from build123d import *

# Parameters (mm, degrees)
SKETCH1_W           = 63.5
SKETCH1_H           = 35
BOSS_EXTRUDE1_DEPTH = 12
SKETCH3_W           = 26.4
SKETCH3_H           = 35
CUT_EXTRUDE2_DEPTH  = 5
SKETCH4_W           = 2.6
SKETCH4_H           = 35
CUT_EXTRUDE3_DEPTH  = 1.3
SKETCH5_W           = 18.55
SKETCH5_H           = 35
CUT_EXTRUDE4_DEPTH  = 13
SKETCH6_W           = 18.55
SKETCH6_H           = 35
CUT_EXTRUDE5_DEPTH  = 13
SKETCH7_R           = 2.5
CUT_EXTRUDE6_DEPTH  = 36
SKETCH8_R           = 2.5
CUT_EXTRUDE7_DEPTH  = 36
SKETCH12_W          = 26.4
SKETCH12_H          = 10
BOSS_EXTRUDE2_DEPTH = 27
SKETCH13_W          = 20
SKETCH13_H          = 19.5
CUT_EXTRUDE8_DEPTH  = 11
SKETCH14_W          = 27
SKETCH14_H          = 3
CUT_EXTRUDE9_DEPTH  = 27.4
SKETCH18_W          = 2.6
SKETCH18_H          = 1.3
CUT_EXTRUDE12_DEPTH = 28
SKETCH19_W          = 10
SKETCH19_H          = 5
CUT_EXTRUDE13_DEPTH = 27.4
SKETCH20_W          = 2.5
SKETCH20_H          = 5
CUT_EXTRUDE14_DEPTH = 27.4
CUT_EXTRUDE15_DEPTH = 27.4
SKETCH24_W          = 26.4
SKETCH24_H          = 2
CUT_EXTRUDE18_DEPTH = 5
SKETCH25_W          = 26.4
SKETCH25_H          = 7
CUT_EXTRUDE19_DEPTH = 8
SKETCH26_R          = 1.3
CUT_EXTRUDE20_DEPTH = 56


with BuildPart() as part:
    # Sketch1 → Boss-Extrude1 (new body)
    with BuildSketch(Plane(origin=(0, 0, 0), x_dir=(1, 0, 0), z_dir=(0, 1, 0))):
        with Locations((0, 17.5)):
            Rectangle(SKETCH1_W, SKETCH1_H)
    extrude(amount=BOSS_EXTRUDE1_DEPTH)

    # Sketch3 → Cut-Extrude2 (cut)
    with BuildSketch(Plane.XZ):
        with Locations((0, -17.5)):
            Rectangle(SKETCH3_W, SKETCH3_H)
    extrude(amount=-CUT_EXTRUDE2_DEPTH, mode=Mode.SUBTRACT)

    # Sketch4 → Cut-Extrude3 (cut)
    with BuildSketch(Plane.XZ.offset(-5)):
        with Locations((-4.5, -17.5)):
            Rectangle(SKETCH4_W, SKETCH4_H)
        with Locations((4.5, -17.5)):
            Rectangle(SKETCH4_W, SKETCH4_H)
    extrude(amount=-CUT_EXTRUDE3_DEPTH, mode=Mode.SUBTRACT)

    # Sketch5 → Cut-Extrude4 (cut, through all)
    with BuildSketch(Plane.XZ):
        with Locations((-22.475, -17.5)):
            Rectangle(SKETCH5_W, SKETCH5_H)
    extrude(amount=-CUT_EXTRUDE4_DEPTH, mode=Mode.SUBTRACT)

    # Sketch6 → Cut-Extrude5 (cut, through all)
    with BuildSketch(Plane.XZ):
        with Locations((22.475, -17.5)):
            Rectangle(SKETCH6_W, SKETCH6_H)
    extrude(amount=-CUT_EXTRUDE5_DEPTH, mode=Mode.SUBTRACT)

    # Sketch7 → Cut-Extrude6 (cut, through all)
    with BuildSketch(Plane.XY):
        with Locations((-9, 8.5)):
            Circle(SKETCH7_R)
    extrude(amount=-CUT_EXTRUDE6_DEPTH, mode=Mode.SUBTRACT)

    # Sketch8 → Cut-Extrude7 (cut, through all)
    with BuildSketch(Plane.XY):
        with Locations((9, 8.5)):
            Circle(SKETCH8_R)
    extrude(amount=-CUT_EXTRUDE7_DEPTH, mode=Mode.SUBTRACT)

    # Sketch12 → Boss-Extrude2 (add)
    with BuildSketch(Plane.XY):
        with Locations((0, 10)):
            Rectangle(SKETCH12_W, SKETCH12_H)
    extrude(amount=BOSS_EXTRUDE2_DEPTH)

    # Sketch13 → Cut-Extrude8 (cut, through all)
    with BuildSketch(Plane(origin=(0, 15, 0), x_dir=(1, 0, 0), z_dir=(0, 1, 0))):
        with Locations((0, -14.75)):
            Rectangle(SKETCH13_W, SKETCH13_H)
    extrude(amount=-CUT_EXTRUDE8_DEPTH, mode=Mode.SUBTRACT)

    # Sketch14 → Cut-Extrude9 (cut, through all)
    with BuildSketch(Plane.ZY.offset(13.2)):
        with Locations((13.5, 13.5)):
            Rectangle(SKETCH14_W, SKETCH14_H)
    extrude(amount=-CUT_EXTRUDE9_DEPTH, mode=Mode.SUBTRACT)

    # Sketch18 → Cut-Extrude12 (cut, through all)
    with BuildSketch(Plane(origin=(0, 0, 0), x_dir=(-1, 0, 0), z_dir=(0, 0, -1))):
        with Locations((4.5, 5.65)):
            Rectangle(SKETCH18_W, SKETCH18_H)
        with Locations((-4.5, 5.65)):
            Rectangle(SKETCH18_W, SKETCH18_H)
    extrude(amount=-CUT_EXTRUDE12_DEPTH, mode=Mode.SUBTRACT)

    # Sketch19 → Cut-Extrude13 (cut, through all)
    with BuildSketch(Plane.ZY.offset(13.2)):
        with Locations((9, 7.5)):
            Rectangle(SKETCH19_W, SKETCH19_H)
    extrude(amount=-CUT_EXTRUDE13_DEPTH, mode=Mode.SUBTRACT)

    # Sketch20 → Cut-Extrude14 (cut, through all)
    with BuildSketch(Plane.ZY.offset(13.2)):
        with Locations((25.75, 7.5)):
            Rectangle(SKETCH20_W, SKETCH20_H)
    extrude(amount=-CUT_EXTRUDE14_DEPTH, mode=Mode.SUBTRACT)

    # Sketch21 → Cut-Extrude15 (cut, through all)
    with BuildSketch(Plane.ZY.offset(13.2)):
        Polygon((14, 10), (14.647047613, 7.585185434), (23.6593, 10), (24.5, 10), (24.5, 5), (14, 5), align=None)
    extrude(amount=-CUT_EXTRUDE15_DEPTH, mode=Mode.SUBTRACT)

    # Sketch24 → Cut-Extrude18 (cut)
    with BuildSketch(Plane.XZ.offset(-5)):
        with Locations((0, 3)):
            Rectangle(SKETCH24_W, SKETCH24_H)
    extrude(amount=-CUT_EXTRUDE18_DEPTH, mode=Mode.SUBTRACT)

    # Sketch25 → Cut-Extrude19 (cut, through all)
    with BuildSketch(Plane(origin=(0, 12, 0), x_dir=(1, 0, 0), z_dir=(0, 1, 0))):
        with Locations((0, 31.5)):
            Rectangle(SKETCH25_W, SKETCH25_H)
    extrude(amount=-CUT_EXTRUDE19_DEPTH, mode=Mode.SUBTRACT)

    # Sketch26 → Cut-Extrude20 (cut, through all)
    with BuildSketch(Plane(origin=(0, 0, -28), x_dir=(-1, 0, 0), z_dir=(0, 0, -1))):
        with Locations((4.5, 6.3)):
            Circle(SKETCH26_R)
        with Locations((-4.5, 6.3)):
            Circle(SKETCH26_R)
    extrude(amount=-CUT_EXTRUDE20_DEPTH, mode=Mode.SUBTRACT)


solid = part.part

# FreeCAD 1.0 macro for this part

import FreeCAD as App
import Part
import Sketcher
Q = App.Units.Quantity


def add_polygon(sketch, points):
    """Adds a closed chain of lines whose ends are joined by coincident constraints."""
    first, n = sketch.GeometryCount, len(points)
    for a, b in zip(points, points[1:] + points[:1]):
        sketch.addGeometry(Part.LineSegment(App.Vector(*a, 0), App.Vector(*b, 0)), False)
    for i in range(n):
        sketch.addConstraint(Sketcher.Constraint("Coincident", first + i, 2, first + (i + 1) % n, 1))

doc = App.newDocument("Part")
params = doc.addObject("Spreadsheet::Sheet", "Params")
for row, (alias, value) in enumerate([
    ("sketch1_height", "35 mm"),
    ("sketch1_width", "63.5 mm"),
    ("pad1_length", "12 mm"),
    ("sketch2_height", "35 mm"),
    ("sketch2_width", "26.4 mm"),
    ("pocket1_length", "5 mm"),
    ("sketch3_height", "35 mm"),
    ("sketch3_width", "2.6 mm"),
    ("pocket2_length", "1.3 mm"),
    ("sketch4_height", "35 mm"),
    ("sketch4_width", "18.55 mm"),
    ("sketch5_height", "35 mm"),
    ("sketch5_width", "18.55 mm"),
    ("sketch6_diameter", "5 mm"),
    ("sketch7_diameter", "5 mm"),
    ("sketch8_height", "10 mm"),
    ("sketch8_width", "26.4 mm"),
    ("pad2_length", "27 mm"),
    ("sketch9_width", "20 mm"),
    ("sketch9_height", "19.5 mm"),
    ("sketch10_width", "3 mm"),
    ("sketch10_height", "27 mm"),
    ("sketch11_width", "2.6 mm"),
    ("sketch11_height", "1.3 mm"),
    ("sketch12_width", "5 mm"),
    ("sketch12_height", "10 mm"),
    ("sketch13_width", "5 mm"),
    ("sketch13_height", "2.5 mm"),
    ("sketch14_width", "5 mm"),
    ("sketch14_height", "10.5 mm"),
    ("sketch14_length", "2.5 mm"),
    ("sketch15_height", "2 mm"),
    ("sketch15_width", "26.4 mm"),
    ("pocket13_length", "5 mm"),
    ("sketch16_height", "7 mm"),
    ("sketch16_width", "26.4 mm"),
    ("sketch17_diameter", "2.6 mm"),
], start=1):
    params.set(f"A{row}", alias)
    params.set(f"B{row}", "=" + value)
    params.setAlias(f"B{row}", alias)

body = doc.addObject("PartDesign::Body", "Body")

sketch1 = body.newObject("Sketcher::SketchObject", "Sketch")
sketch1.AttachmentSupport = (doc.getObject("XZ_Plane"), [""])
sketch1.MapMode = "FlatFace"
add_polygon(sketch1, [(-32, -35), (-32, 0), (32, 0), (32, -35)])
sketch1.addConstraint([
    Sketcher.Constraint("Vertical", 0),
    Sketcher.Constraint("Horizontal", 1),
    Sketcher.Constraint("Vertical", 2),
    Sketcher.Constraint("Horizontal", 3),
    Sketcher.Constraint("Symmetric", 0, 2, 1, 2, -1, 1),
    Sketcher.Constraint("DistanceY", 0, 1, 0, 2, 35.0),
    Sketcher.Constraint("DistanceX", 1, 1, 1, 2, 63.5),
])
sketch1.setExpression("Constraints[9]", "Params.sketch1_height")
sketch1.setExpression("Constraints[10]", "Params.sketch1_width")
pad1 = body.newObject("PartDesign::Pad", "Pad")
pad1.Profile = sketch1
pad1.setExpression("Length", "Params.pad1_length")
pad1.Reversed = True

sketch2 = body.newObject("Sketcher::SketchObject", "Sketch001")
sketch2.AttachmentSupport = (doc.getObject("XZ_Plane"), [""])
sketch2.MapMode = "FlatFace"
add_polygon(sketch2, [(-13, 0), (-13, -35), (13, -35), (13, 0)])
sketch2.addConstraint([
    Sketcher.Constraint("Vertical", 0),
    Sketcher.Constraint("Horizontal", 1),
    Sketcher.Constraint("Vertical", 2),
    Sketcher.Constraint("Horizontal", 3),
    Sketcher.Constraint("Symmetric", 2, 2, 3, 2, -1, 1),
    Sketcher.Constraint("DistanceY", 0, 2, 0, 1, 35.0),
    Sketcher.Constraint("DistanceX", 1, 1, 1, 2, 26.4),
])
sketch2.setExpression("Constraints[9]", "Params.sketch2_height")
sketch2.setExpression("Constraints[10]", "Params.sketch2_width")
pocket1 = body.newObject("PartDesign::Pocket", "Pocket")
pocket1.Profile = sketch2
pocket1.setExpression("Length", "Params.pocket1_length")

sketch3 = body.newObject("Sketcher::SketchObject", "Sketch002")
sketch3.AttachmentSupport = (doc.getObject("XZ_Plane"), [""])
sketch3.MapMode = "FlatFace"
sketch3.AttachmentOffset = App.Placement(App.Vector(0, 0, -5), App.Rotation())
add_polygon(sketch3, [(-5.8, 0), (-5.8, -35), (-3.2, -35), (-3.2, 0)])
add_polygon(sketch3, [(3.2, 0), (3.2, -35), (5.8, -35), (5.8, 0)])
sketch3.addConstraint([
    Sketcher.Constraint("Vertical", 0),
    Sketcher.Constraint("Horizontal", 1),
    Sketcher.Constraint("Vertical", 2),
    Sketcher.Constraint("Horizontal", 3),
    Sketcher.Constraint("Vertical", 4),
    Sketcher.Constraint("Horizontal", 5),
    Sketcher.Constraint("Vertical", 6),
    Sketcher.Constraint("Horizontal", 7),
    Sketcher.Constraint("Symmetric", 3, 2, 6, 2, -1, 1),
    Sketcher.Constraint("Symmetric", 1, 2, 4, 2, -2),
    Sketcher.Constraint("PointOnObject", 2, 2, -1),
    Sketcher.Constraint("DistanceY", 0, 2, 0, 1, 35.0),
    Sketcher.Constraint("DistanceX", 1, 1, 1, 2, 2.6),
    Sketcher.Constraint("DistanceX", 0, 2, 4, 2, 9.0),
])
sketch3.setExpression("Constraints[19]", "Params.sketch3_height")
sketch3.setExpression("Constraints[20]", "Params.sketch3_width")
pocket2 = body.newObject("PartDesign::Pocket", "Pocket001")
pocket2.Profile = sketch3
pocket2.setExpression("Length", "Params.pocket2_length")

sketch4 = body.newObject("Sketcher::SketchObject", "Sketch003")
sketch4.AttachmentSupport = (doc.getObject("XZ_Plane"), [""])
sketch4.MapMode = "FlatFace"
add_polygon(sketch4, [(-32, 0), (-32, -35), (-13, -35), (-13, 0)])
sketch4.addConstraint([
    Sketcher.Constraint("Vertical", 0),
    Sketcher.Constraint("Horizontal", 1),
    Sketcher.Constraint("Vertical", 2),
    Sketcher.Constraint("Horizontal", 3),
    Sketcher.Constraint("PointOnObject", 2, 2, -1),
    Sketcher.Constraint("DistanceY", 0, 2, 0, 1, 35.0),
    Sketcher.Constraint("DistanceX", 1, 1, 1, 2, 18.55),
    Sketcher.Constraint("DistanceX", 1, 2, -1, 1, 13.2),
])
sketch4.setExpression("Constraints[9]", "Params.sketch4_height")
sketch4.setExpression("Constraints[10]", "Params.sketch4_width")
pocket3 = body.newObject("PartDesign::Pocket", "Pocket002")
pocket3.Profile = sketch4
pocket3.Type = "ThroughAll"

sketch5 = body.newObject("Sketcher::SketchObject", "Sketch004")
sketch5.AttachmentSupport = (doc.getObject("XZ_Plane"), [""])
sketch5.MapMode = "FlatFace"
add_polygon(sketch5, [(13, 0), (13, -35), (32, -35), (32, 0)])
sketch5.addConstraint([
    Sketcher.Constraint("Vertical", 0),
    Sketcher.Constraint("Horizontal", 1),
    Sketcher.Constraint("Vertical", 2),
    Sketcher.Constraint("Horizontal", 3),
    Sketcher.Constraint("PointOnObject", 2, 2, -1),
    Sketcher.Constraint("DistanceY", 0, 2, 0, 1, 35.0),
    Sketcher.Constraint("DistanceX", 1, 1, 1, 2, 18.55),
    Sketcher.Constraint("DistanceX", -1, 1, 0, 2, 13.2),
])
sketch5.setExpression("Constraints[9]", "Params.sketch5_height")
sketch5.setExpression("Constraints[10]", "Params.sketch5_width")
pocket4 = body.newObject("PartDesign::Pocket", "Pocket003")
pocket4.Profile = sketch5
pocket4.Type = "ThroughAll"

sketch6 = body.newObject("Sketcher::SketchObject", "Sketch005")
sketch6.AttachmentSupport = (doc.getObject("XY_Plane"), [""])
sketch6.MapMode = "FlatFace"
sketch6.addGeometry(Part.Circle(App.Vector(-9, 8.5, 0), App.Vector(0, 0, 1), 2.5), False)
sketch6.addConstraint([
    Sketcher.Constraint("Diameter", 0, 5.0),
    Sketcher.Constraint("DistanceX", 0, 3, -1, 1, 9.0),
    Sketcher.Constraint("DistanceY", -1, 1, 0, 3, 8.5),
])
sketch6.setExpression("Constraints[0]", "Params.sketch6_diameter")
pocket5 = body.newObject("PartDesign::Pocket", "Pocket004")
pocket5.Profile = sketch6
pocket5.Type = "ThroughAll"

sketch7 = body.newObject("Sketcher::SketchObject", "Sketch006")
sketch7.AttachmentSupport = (doc.getObject("XY_Plane"), [""])
sketch7.MapMode = "FlatFace"
sketch7.addGeometry(Part.Circle(App.Vector(9, 8.5, 0), App.Vector(0, 0, 1), 2.5), False)
sketch7.addConstraint([
    Sketcher.Constraint("Diameter", 0, 5.0),
    Sketcher.Constraint("DistanceX", -1, 1, 0, 3, 9.0),
    Sketcher.Constraint("DistanceY", -1, 1, 0, 3, 8.5),
])
sketch7.setExpression("Constraints[0]", "Params.sketch7_diameter")
pocket6 = body.newObject("PartDesign::Pocket", "Pocket005")
pocket6.Profile = sketch7
pocket6.Type = "ThroughAll"

sketch8 = body.newObject("Sketcher::SketchObject", "Sketch007")
sketch8.AttachmentSupport = (doc.getObject("XY_Plane"), [""])
sketch8.MapMode = "FlatFace"
add_polygon(sketch8, [(-13, 15), (-13, 5), (13, 5), (13, 15)])
sketch8.addConstraint([
    Sketcher.Constraint("Vertical", 0),
    Sketcher.Constraint("Horizontal", 1),
    Sketcher.Constraint("Vertical", 2),
    Sketcher.Constraint("Horizontal", 3),
    Sketcher.Constraint("DistanceY", 0, 2, 0, 1, 10.0),
    Sketcher.Constraint("DistanceX", 1, 1, 1, 2, 26.4),
    Sketcher.Constraint("DistanceY", -1, 1, 0, 2, 5.0),
    Sketcher.Constraint("DistanceX", 0, 2, -1, 1, 13.2),
])
sketch8.setExpression("Constraints[8]", "Params.sketch8_height")
sketch8.setExpression("Constraints[9]", "Params.sketch8_width")
pad2 = body.newObject("PartDesign::Pad", "Pad001")
pad2.Profile = sketch8
pad2.setExpression("Length", "Params.pad2_length")

sketch9 = body.newObject("Sketcher::SketchObject", "Sketch008")
sketch9.AttachmentSupport = (doc.getObject("XZ_Plane"), [""])
sketch9.MapMode = "FlatFace"
sketch9.AttachmentOffset = App.Placement(App.Vector(0, 0, -15), App.Rotation())
add_polygon(sketch9, [(-10, 5), (-10, 24), (10, 24), (10, 5)])
sketch9.addConstraint([
    Sketcher.Constraint("Vertical", 0),
    Sketcher.Constraint("Horizontal", 1),
    Sketcher.Constraint("Vertical", 2),
    Sketcher.Constraint("Horizontal", 3),
    Sketcher.Constraint("DistanceX", 1, 1, 1, 2, 20.0),
    Sketcher.Constraint("DistanceY", 0, 1, 0, 2, 19.5),
    Sketcher.Constraint("DistanceX", 0, 2, -1, 1, 10.0),
    Sketcher.Constraint("DistanceY", -1, 1, 2, 2, 5.0),
])
sketch9.setExpression("Constraints[8]", "Params.sketch9_width")
sketch9.setExpression("Constraints[9]", "Params.sketch9_height")
pocket7 = body.newObject("PartDesign::Pocket", "Pocket006")
pocket7.Profile = sketch9
pocket7.Type = "ThroughAll"
pocket7.Reversed = True

sketch10 = body.newObject("Sketcher::SketchObject", "Sketch009")
sketch10.AttachmentSupport = (doc.getObject("YZ_Plane"), [""])
sketch10.MapMode = "FlatFace"
sketch10.AttachmentOffset = App.Placement(App.Vector(0, 0, -13.2), App.Rotation())
add_polygon(sketch10, [(15, 0), (12, 0), (12, 27), (15, 27)])
sketch10.addConstraint([
    Sketcher.Constraint("Horizontal", 0),
    Sketcher.Constraint("Vertical", 1),
    Sketcher.Constraint("Horizontal", 2),
    Sketcher.Constraint("Vertical", 3),
    Sketcher.Constraint("PointOnObject", 0, 2, -1),
    Sketcher.Constraint("DistanceX", 0, 2, 0, 1, 3.0),
    Sketcher.Constraint("DistanceY", 1, 1, 1, 2, 27.0),
    Sketcher.Constraint("DistanceX", -1, 1, 0, 2, 12.0),
])
sketch10.setExpression("Constraints[9]", "Params.sketch10_width")
sketch10.setExpression("Constraints[10]", "Params.sketch10_height")
pocket8 = body.newObject("PartDesign::Pocket", "Pocket007")
pocket8.Profile = sketch10
pocket8.Type = "ThroughAll"
pocket8.Reversed = True

sketch11 = body.newObject("Sketcher::SketchObject", "Sketch010")
sketch11.AttachmentSupport = (doc.getObject("XY_Plane"), [""])
sketch11.MapMode = "FlatFace"
add_polygon(sketch11, [(-3.2, 6.3), (-3.2, 5), (-5.8, 5), (-5.8, 6.3)])
add_polygon(sketch11, [(5.8, 6.3), (5.8, 5), (3.2, 5), (3.2, 6.3)])
sketch11.addConstraint([
    Sketcher.Constraint("Vertical", 0),
    Sketcher.Constraint("Horizontal", 1),
    Sketcher.Constraint("Vertical", 2),
    Sketcher.Constraint("Horizontal", 3),
    Sketcher.Constraint("Vertical", 4),
    Sketcher.Constraint("Horizontal", 5),
    Sketcher.Constraint("Vertical", 6),
    Sketcher.Constraint("Horizontal", 7),
    Sketcher.Constraint("Symmetric", 1, 2, 4, 2, -2),
    Sketcher.Constraint("Symmetric", 3, 2, 6, 2, -2),
    Sketcher.Constraint("DistanceX", 1, 2, 1, 1, 2.6),
    Sketcher.Constraint("DistanceY", 0, 2, 0, 1, 1.3),
    Sketcher.Constraint("DistanceY", -1, 1, 0, 2, 5.0),
    Sketcher.Constraint("DistanceX", 0, 2, 4, 2, 9.0),
])
sketch11.setExpression("Constraints[18]", "Params.sketch11_width")
sketch11.setExpression("Constraints[19]", "Params.sketch11_height")
pocket9 = body.newObject("PartDesign::Pocket", "Pocket008")
pocket9.Profile = sketch11
pocket9.Type = "ThroughAll"
pocket9.Reversed = True

sketch12 = body.newObject("Sketcher::SketchObject", "Sketch011")
sketch12.AttachmentSupport = (doc.getObject("YZ_Plane"), [""])
sketch12.MapMode = "FlatFace"
sketch12.AttachmentOffset = App.Placement(App.Vector(0, 0, -13.2), App.Rotation())
add_polygon(sketch12, [(10, 4), (5, 4), (5, 14), (10, 14)])
sketch12.addConstraint([
    Sketcher.Constraint("Horizontal", 0),
    Sketcher.Constraint("Vertical", 1),
    Sketcher.Constraint("Horizontal", 2),
    Sketcher.Constraint("Vertical", 3),
    Sketcher.Constraint("DistanceX", 0, 2, 0, 1, 5.0),
    Sketcher.Constraint("DistanceY", 1, 1, 1, 2, 10.0),
    Sketcher.Constraint("DistanceX", -1, 1, 0, 2, 5.0),
    Sketcher.Constraint("DistanceY", -1, 1, 0, 2, 4.0),
])
sketch12.setExpression("Constraints[8]", "Params.sketch12_width")
sketch12.setExpression("Constraints[9]", "Params.sketch12_height")
pocket10 = body.newObject("PartDesign::Pocket", "Pocket009")
pocket10.Profile = sketch12
pocket10.Type = "ThroughAll"
pocket10.Reversed = True

sketch13 = body.newObject("Sketcher::SketchObject", "Sketch012")
sketch13.AttachmentSupport = (doc.getObject("YZ_Plane"), [""])
sketch13.MapMode = "FlatFace"
sketch13.AttachmentOffset = App.Placement(App.Vector(0, 0, -13.2), App.Rotation())
add_polygon(sketch13, [(10, 24.5), (5, 24.5), (5, 27), (10, 27)])
sketch13.addConstraint([
    Sketcher.Constraint("Horizontal", 0),
    Sketcher.Constraint("Vertical", 1),
    Sketcher.Constraint("Horizontal", 2),
    Sketcher.Constraint("Vertical", 3),
    Sketcher.Constraint("DistanceX", 0, 2, 0, 1, 5.0),
    Sketcher.Constraint("DistanceY", 1, 1, 1, 2, 2.5),
    Sketcher.Constraint("DistanceX", -1, 1, 0, 2, 5.0),
    Sketcher.Constraint("DistanceY", -1, 1, 1, 2, 27.0),
])
sketch13.setExpression("Constraints[8]", "Params.sketch13_width")
sketch13.setExpression("Constraints[9]", "Params.sketch13_height")
pocket11 = body.newObject("PartDesign::Pocket", "Pocket010")
pocket11.Profile = sketch13
pocket11.Type = "ThroughAll"
pocket11.Reversed = True

sketch14 = body.newObject("Sketcher::SketchObject", "Sketch013")
sketch14.AttachmentSupport = (doc.getObject("YZ_Plane"), [""])
sketch14.MapMode = "FlatFace"
sketch14.AttachmentOffset = App.Placement(App.Vector(0, 0, -13.2), App.Rotation())
add_polygon(sketch14, [(7.585185, 14.647048), (10, 14), (5, 14), (5, 24.5), (10, 24.5), (10, 23.6593)])
sketch14.addConstraint([
    Sketcher.Constraint("Horizontal", 1),
    Sketcher.Constraint("Vertical", 2),
    Sketcher.Constraint("Horizontal", 3),
    Sketcher.Constraint("Vertical", 4),
    Sketcher.Constraint("Perpendicular", 0, 5),
    Sketcher.Constraint("Vertical", 0, 2, 3, 2),
    Sketcher.Constraint("DistanceX", 1, 2, 1, 1, 5.0),
    Sketcher.Constraint("Angle", 0, Q("-15 deg")),
    Sketcher.Constraint("DistanceY", 2, 1, 2, 2, 10.5),
    Sketcher.Constraint("DistanceX", -1, 1, 0, 2, 10.0),
    Sketcher.Constraint("DistanceY", -1, 1, 0, 2, 14.0),
    Sketcher.Constraint("Distance", 0, 2.5),
])
sketch14.setExpression("Constraints[12]", "Params.sketch14_width")
sketch14.setExpression("Constraints[14]", "Params.sketch14_height")
sketch14.setExpression("Constraints[17]", "Params.sketch14_length")
pocket12 = body.newObject("PartDesign::Pocket", "Pocket011")
pocket12.Profile = sketch14
pocket12.Type = "ThroughAll"
pocket12.Reversed = True

sketch15 = body.newObject("Sketcher::SketchObject", "Sketch014")
sketch15.AttachmentSupport = (doc.getObject("XZ_Plane"), [""])
sketch15.MapMode = "FlatFace"
sketch15.AttachmentOffset = App.Placement(App.Vector(0, 0, -5), App.Rotation())
add_polygon(sketch15, [(-13.2, 4), (-13.2, 2), (13.2, 2), (13.2, 4)])
sketch15.addConstraint([
    Sketcher.Constraint("Vertical", 0),
    Sketcher.Constraint("Horizontal", 1),
    Sketcher.Constraint("Vertical", 2),
    Sketcher.Constraint("Horizontal", 3),
    Sketcher.Constraint("DistanceY", 0, 2, 0, 1, 2.0),
    Sketcher.Constraint("DistanceX", 1, 1, 1, 2, 26.4),
    Sketcher.Constraint("DistanceY", -1, 1, 0, 2, 2.0),
    Sketcher.Constraint("DistanceX", 0, 2, -1, 1, 13.2),
])
sketch15.setExpression("Constraints[8]", "Params.sketch15_height")
sketch15.setExpression("Constraints[9]", "Params.sketch15_width")
pocket13 = body.newObject("PartDesign::Pocket", "Pocket012")
pocket13.Profile = sketch15
pocket13.setExpression("Length", "Params.pocket13_length")

sketch16 = body.newObject("Sketcher::SketchObject", "Sketch015")
sketch16.AttachmentSupport = (doc.getObject("XZ_Plane"), [""])
sketch16.MapMode = "FlatFace"
sketch16.AttachmentOffset = App.Placement(App.Vector(0, 0, -12), App.Rotation())
add_polygon(sketch16, [(-13, -35), (-13, -28), (13, -28), (13, -35)])
sketch16.addConstraint([
    Sketcher.Constraint("Vertical", 0),
    Sketcher.Constraint("Horizontal", 1),
    Sketcher.Constraint("Vertical", 2),
    Sketcher.Constraint("Horizontal", 3),
    Sketcher.Constraint("DistanceY", 0, 1, 0, 2, 7.0),
    Sketcher.Constraint("DistanceX", 1, 1, 1, 2, 26.4),
    Sketcher.Constraint("DistanceY", 0, 2, -1, 1, 28.0),
    Sketcher.Constraint("DistanceX", 0, 2, -1, 1, 13.2),
])
sketch16.setExpression("Constraints[8]", "Params.sketch16_height")
sketch16.setExpression("Constraints[9]", "Params.sketch16_width")
pocket14 = body.newObject("PartDesign::Pocket", "Pocket013")
pocket14.Profile = sketch16
pocket14.Type = "ThroughAll"
pocket14.Reversed = True

sketch17 = body.newObject("Sketcher::SketchObject", "Sketch016")
sketch17.AttachmentSupport = (doc.getObject("XY_Plane"), [""])
sketch17.MapMode = "FlatFace"
sketch17.AttachmentOffset = App.Placement(App.Vector(0, 0, -28), App.Rotation())
sketch17.addGeometry([
    Part.Circle(App.Vector(-4.5, 6.3, 0), App.Vector(0, 0, 1), 1.3),
    Part.Circle(App.Vector(4.5, 6.3, 0), App.Vector(0, 0, 1), 1.3),
], False)
sketch17.addConstraint([
    Sketcher.Constraint("Equal", 0, 1),
    Sketcher.Constraint("Symmetric", 0, 3, 1, 3, -2),
    Sketcher.Constraint("Diameter", 0, 2.6),
    Sketcher.Constraint("DistanceX", 0, 3, 1, 3, 9.0),
    Sketcher.Constraint("DistanceY", -1, 1, 0, 3, 6.3),
])
sketch17.setExpression("Constraints[2]", "Params.sketch17_diameter")
pocket15 = body.newObject("PartDesign::Pocket", "Pocket014")
pocket15.Profile = sketch17
pocket15.Type = "ThroughAll"
pocket15.Reversed = True

doc.recompute()
